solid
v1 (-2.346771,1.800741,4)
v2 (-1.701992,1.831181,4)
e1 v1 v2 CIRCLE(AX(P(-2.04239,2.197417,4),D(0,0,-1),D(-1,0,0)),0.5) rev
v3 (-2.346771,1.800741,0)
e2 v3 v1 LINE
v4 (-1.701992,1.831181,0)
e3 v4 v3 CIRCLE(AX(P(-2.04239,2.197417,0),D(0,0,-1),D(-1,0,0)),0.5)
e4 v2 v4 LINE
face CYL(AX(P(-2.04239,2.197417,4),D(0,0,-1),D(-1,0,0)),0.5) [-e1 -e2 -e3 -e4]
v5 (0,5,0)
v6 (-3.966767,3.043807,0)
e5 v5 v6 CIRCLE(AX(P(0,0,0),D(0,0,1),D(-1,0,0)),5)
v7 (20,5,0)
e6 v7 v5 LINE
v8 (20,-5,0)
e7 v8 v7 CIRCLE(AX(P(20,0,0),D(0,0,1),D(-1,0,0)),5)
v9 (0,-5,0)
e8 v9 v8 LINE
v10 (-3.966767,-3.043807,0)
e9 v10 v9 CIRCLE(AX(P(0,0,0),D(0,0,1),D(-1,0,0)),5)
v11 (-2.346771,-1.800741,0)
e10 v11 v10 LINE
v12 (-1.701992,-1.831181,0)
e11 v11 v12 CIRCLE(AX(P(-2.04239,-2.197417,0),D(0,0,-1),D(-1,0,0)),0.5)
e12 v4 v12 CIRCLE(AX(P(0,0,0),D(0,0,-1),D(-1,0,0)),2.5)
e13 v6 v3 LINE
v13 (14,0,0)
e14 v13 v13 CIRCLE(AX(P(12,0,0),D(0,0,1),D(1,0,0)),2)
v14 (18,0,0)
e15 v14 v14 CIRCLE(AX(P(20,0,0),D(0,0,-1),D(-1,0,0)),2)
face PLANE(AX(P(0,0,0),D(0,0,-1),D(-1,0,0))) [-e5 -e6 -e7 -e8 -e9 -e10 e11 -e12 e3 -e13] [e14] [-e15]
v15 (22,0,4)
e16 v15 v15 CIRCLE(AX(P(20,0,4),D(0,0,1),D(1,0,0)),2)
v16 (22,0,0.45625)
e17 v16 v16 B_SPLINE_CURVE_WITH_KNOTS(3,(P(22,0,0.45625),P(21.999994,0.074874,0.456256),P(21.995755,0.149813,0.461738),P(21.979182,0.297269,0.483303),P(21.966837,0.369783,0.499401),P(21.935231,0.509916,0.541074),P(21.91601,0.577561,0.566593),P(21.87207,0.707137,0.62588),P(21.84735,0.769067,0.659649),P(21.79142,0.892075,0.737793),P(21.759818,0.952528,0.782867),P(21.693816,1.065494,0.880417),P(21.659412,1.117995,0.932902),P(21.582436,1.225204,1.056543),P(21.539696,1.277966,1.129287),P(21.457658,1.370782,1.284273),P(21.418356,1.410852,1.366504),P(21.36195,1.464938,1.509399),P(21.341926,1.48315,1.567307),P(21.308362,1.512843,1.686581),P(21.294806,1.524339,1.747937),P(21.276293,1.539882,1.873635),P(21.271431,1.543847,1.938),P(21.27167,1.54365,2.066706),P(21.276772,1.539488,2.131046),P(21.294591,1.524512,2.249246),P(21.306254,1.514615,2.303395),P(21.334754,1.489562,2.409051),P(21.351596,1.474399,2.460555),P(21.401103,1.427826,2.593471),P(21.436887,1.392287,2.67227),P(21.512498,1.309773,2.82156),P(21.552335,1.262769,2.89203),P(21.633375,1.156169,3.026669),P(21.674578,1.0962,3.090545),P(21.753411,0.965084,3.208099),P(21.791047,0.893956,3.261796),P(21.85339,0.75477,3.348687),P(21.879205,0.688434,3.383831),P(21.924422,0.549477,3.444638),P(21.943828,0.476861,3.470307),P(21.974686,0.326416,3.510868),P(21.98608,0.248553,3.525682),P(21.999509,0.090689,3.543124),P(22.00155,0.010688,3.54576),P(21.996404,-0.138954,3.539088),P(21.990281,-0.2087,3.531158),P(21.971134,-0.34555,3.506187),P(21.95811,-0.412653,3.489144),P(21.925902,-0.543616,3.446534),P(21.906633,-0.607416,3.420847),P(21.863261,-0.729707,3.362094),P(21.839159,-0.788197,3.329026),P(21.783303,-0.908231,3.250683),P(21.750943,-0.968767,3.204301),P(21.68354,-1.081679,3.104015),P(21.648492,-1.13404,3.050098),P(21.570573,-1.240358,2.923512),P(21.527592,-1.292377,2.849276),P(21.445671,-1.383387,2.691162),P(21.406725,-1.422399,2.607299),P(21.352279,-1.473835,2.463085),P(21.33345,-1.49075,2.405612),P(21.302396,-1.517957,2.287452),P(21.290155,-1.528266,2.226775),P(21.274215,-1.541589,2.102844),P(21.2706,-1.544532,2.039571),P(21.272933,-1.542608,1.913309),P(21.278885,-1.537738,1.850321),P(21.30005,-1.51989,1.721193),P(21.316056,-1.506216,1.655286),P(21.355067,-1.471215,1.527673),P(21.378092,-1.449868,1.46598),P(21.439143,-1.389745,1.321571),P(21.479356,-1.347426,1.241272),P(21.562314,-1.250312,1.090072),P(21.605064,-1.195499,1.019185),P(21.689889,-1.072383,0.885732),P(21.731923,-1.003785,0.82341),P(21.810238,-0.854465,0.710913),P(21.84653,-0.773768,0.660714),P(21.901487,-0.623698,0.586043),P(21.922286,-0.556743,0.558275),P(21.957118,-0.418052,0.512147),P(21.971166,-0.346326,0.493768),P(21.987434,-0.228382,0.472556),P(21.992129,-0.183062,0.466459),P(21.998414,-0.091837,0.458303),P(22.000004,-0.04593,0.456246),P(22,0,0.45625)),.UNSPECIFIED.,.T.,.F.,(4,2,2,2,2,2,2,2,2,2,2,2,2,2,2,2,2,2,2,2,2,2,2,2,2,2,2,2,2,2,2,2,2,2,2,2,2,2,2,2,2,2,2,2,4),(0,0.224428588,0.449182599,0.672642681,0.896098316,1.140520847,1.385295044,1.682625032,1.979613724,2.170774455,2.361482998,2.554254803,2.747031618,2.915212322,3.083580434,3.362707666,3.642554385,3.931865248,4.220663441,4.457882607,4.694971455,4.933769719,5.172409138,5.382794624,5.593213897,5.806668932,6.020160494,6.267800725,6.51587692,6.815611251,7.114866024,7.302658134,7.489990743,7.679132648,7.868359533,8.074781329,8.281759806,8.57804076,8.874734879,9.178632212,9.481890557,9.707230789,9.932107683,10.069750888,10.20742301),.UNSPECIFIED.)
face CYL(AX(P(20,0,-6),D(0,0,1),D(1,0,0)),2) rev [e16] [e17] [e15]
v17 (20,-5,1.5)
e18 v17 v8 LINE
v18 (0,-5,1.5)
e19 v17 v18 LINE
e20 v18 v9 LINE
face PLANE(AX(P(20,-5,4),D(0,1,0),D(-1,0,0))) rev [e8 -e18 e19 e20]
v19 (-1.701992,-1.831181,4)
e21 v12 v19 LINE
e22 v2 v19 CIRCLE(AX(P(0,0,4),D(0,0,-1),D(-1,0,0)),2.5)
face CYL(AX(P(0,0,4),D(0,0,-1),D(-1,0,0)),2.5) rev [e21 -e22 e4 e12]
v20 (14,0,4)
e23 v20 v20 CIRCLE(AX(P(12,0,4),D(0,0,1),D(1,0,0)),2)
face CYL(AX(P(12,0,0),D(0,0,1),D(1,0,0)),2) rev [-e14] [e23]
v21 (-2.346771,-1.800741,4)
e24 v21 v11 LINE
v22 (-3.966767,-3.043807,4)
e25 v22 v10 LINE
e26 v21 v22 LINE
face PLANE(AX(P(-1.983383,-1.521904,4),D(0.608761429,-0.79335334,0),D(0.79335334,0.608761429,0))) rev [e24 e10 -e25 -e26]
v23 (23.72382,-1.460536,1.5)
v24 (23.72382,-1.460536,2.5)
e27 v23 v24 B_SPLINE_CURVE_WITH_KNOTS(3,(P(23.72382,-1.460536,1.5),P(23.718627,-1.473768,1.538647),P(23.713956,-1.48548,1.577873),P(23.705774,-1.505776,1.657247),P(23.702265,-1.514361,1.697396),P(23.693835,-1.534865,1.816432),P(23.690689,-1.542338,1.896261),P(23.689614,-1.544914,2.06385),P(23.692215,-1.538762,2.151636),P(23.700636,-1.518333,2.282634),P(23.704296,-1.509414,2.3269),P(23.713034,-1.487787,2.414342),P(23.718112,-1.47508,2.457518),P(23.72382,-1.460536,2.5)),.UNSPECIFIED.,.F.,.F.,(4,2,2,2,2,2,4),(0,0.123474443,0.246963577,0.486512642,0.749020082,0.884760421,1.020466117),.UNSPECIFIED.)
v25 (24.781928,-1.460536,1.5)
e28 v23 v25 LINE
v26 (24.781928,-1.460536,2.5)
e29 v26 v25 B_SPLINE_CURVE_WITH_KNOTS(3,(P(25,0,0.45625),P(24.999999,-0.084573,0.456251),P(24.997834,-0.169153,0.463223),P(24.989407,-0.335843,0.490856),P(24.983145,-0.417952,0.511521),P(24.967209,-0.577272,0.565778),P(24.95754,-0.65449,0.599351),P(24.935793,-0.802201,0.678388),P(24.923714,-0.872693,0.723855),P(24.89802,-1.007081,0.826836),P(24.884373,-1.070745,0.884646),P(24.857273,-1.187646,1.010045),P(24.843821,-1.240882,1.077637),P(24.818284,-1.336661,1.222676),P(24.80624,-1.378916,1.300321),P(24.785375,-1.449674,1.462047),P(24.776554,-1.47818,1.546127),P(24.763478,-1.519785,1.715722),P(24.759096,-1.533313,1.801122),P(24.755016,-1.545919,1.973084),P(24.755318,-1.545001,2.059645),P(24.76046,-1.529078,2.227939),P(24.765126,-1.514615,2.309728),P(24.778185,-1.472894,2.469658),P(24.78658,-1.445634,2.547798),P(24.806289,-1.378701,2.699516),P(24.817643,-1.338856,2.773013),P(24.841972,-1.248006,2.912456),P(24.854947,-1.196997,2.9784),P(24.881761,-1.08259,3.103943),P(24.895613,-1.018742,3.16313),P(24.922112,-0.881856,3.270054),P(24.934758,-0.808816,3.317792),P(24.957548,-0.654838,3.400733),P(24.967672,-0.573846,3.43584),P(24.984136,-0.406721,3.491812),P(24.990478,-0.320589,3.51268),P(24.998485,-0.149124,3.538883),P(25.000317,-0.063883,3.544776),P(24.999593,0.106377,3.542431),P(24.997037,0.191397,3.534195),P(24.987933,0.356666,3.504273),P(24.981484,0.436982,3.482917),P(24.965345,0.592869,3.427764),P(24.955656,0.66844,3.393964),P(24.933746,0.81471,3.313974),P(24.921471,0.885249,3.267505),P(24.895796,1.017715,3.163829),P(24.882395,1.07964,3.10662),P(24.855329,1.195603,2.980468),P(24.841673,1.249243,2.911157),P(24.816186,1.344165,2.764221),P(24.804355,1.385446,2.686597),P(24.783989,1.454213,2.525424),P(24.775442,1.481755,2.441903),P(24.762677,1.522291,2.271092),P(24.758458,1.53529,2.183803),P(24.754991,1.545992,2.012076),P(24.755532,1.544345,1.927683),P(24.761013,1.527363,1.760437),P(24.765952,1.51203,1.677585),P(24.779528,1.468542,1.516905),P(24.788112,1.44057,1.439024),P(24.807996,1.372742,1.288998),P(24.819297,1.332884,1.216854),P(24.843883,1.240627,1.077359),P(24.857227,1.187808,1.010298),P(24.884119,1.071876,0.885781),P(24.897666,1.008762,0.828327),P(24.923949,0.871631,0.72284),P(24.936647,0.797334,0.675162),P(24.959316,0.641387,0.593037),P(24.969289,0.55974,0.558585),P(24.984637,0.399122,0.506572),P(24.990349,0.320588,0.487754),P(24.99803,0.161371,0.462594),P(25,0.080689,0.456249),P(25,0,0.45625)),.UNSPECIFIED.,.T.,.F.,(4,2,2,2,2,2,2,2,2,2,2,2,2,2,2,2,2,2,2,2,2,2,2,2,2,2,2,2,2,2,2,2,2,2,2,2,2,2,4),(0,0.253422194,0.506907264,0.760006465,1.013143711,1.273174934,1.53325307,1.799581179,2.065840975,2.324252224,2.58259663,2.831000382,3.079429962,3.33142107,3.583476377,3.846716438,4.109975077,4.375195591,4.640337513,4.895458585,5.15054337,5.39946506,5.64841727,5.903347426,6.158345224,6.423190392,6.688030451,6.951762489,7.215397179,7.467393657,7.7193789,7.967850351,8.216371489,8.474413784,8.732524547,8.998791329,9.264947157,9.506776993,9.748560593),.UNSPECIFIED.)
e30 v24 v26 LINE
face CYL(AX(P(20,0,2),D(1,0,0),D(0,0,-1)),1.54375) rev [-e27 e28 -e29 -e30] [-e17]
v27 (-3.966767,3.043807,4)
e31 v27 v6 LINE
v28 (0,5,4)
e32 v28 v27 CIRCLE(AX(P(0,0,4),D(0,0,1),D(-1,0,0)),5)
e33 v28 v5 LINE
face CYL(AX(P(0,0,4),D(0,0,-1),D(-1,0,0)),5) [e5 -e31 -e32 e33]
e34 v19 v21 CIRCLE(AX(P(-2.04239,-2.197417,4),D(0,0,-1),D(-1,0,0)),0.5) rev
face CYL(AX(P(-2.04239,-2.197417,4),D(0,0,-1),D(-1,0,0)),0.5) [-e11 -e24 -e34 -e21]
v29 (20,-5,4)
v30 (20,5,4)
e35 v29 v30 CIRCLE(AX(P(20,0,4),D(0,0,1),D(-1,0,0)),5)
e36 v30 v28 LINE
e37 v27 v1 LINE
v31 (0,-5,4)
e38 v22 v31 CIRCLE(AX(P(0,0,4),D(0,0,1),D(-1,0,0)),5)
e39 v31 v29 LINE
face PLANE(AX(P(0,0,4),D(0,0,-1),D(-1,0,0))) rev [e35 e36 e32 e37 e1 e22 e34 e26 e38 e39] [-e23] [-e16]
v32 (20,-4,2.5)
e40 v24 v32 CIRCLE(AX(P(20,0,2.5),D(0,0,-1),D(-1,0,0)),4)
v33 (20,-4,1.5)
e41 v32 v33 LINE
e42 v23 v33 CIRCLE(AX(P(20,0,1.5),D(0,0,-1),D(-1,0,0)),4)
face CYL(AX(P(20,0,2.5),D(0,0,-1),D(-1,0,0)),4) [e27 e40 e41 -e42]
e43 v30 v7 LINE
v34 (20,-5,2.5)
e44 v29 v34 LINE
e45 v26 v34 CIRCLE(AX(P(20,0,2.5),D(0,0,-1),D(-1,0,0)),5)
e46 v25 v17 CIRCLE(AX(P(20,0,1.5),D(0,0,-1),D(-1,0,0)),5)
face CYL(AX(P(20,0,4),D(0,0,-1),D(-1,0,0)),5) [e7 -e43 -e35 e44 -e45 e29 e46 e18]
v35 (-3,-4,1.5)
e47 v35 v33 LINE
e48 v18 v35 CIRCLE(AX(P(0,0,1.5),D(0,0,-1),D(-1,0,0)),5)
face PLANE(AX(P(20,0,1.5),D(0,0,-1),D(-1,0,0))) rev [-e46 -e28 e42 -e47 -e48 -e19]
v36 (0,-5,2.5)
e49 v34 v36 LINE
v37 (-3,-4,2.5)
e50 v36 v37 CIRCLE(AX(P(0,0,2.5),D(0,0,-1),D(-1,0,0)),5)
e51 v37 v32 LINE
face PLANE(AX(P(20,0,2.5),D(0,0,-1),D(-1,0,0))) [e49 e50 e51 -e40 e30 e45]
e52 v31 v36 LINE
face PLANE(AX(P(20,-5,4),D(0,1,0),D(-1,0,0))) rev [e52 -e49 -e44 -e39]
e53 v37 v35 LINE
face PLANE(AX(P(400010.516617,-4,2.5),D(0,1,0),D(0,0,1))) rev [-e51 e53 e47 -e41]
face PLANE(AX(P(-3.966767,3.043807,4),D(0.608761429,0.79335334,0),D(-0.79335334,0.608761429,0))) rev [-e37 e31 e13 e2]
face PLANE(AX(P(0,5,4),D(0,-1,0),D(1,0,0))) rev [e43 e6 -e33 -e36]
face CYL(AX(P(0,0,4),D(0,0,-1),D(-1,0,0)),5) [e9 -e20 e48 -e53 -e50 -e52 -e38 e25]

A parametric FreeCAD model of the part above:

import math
import FreeCAD as App
import Part
import Sketcher
from FreeCAD import Vector
Q = App.Units.Quantity


def edges_at(feature, points):
    """Names of the edges that pass closest to the given points."""
    edges = feature.Shape.Edges
    near = lambda p: min(range(len(edges)), key=lambda i: edges[i].distToShape(Part.Vertex(*p))[0])
    return sorted({f"Edge{near(p) + 1}" for p in points})

doc = App.newDocument("Part")
body = doc.addObject("PartDesign::Body", "Body")

# Sketch on XY plane
sketch1 = body.newObject("Sketcher::SketchObject", "Sketch")
sketch1.AttachmentSupport = (doc.getObject("XY_Plane"), [""])
sketch1.MapMode = "FlatFace"
sketch1.addGeometry([
    Part.LineSegment(Vector(-4, 3, 0), Vector(-2, 1.5, 0)),  # 0
    Part.ArcOfCircle(Part.Circle(Vector(0, 0, 0), Vector(0, 0, 1), 2.5), math.radians(-142), math.radians(142)),  # 1
    Part.LineSegment(Vector(-2, -1.5, 0), Vector(-4, -3, 0)),  # 2
    Part.ArcOfCircle(Part.Circle(Vector(0, 0, 0), Vector(0, 0, 1), 5), math.radians(-143), math.radians(-90)),  # 3
    Part.LineSegment(Vector(0, -5, 0), Vector(20, -5, 0)),  # 4
    Part.ArcOfCircle(Part.Circle(Vector(20, 0, 0), Vector(0, 0, 1), 5), math.radians(-90), math.radians(90)),  # 5
    Part.LineSegment(Vector(20, 5, 0), Vector(0, 5, 0)),  # 6
    Part.ArcOfCircle(Part.Circle(Vector(0, 0, 0), Vector(0, 0, 1), 5), math.radians(90), math.radians(143)),  # 7
], False)
sketch1.addConstraint([
    Sketcher.Constraint("Coincident", 0, 2, 1, 2),
    Sketcher.Constraint("Coincident", 1, 1, 2, 1),
    Sketcher.Constraint("Coincident", 2, 2, 3, 1),
    Sketcher.Constraint("Tangent", 3, 2, 4, 1),
    Sketcher.Constraint("Tangent", 4, 2, 5, 1),
    Sketcher.Constraint("Tangent", 5, 2, 6, 1),
    Sketcher.Constraint("Tangent", 6, 2, 7, 1),
    Sketcher.Constraint("Coincident", 7, 2, 0, 1),
    Sketcher.Constraint("Horizontal", 4),
    Sketcher.Constraint("Horizontal", 6),
    Sketcher.Constraint("Coincident", 1, 3, -1, 1),
    Sketcher.Constraint("Coincident", 3, 3, -1, 1),
    Sketcher.Constraint("Coincident", 7, 3, -1, 1),
    Sketcher.Constraint("Equal", 3, 5),
    Sketcher.Constraint("Vertical", 0, 2, 1, 1),
    Sketcher.Constraint("Vertical", 2, 2, 7, 2),
    Sketcher.Constraint("Radius", 3, Q("5 mm")),
    Sketcher.Constraint("Radius", 1, Q("2.5 mm")),
    Sketcher.Constraint("DistanceX", 4, 1, 4, 2, Q("20 mm")),
    Sketcher.Constraint("Angle", 0, Q("-37.5 deg")),
    Sketcher.Constraint("DistanceY", 2, 2, 0, 2, Q("4.565711 mm")),
])
pad1 = body.newObject("PartDesign::Pad", "Pad")
pad1.Profile = sketch1
pad1.Length = 4
doc.recompute()

fillet = body.newObject("PartDesign::Fillet", "Fillet")
fillet.Base = (pad1, edges_at(pad1, [(-1.983, -1.522, 2), (-1.983, 1.522, 2)]))
fillet.Radius = 0.5

# Sketch on XY plane
sketch2 = body.newObject("Sketcher::SketchObject", "Sketch001")
sketch2.AttachmentSupport = (doc.getObject("XY_Plane"), [""])
sketch2.MapMode = "FlatFace"
sketch2.AttachmentOffset = App.Placement(Vector(0, 0, 4), App.Rotation())
sketch2.addGeometry(Part.Circle(Vector(20, 0, 0), Vector(0, 0, 1), 2), False)
sketch2.addConstraint([
    Sketcher.Constraint("PointOnObject", 0, 3, -1),
    Sketcher.Constraint("Diameter", 0, Q("4 mm")),
    Sketcher.Constraint("DistanceX", -1, 1, 0, 3, Q("20 mm")),
])
pocket1 = body.newObject("PartDesign::Pocket", "Pocket")
pocket1.Profile = sketch2
pocket1.Length = 10

# Sketch on XY plane
sketch3 = body.newObject("Sketcher::SketchObject", "Sketch002")
sketch3.AttachmentSupport = (doc.getObject("XY_Plane"), [""])
sketch3.MapMode = "FlatFace"
sketch3.AttachmentOffset = App.Placement(Vector(0, 0, 4), App.Rotation())
sketch3.addGeometry(Part.Circle(Vector(12, 0, 0), Vector(0, 0, 1), 2), False)
sketch3.addConstraint([
    Sketcher.Constraint("PointOnObject", 0, 3, -1),
    Sketcher.Constraint("Diameter", 0, Q("4 mm")),
    Sketcher.Constraint("DistanceX", -1, 1, 0, 3, Q("12 mm")),
])
pocket2 = body.newObject("PartDesign::Pocket", "Pocket001")
pocket2.Profile = sketch3
pocket2.Length = 4

# Sketch on YZ plane
sketch4 = body.newObject("Sketcher::SketchObject", "Sketch003")
sketch4.AttachmentSupport = (doc.getObject("YZ_Plane"), [""])
sketch4.MapMode = "FlatFace"
sketch4.AttachmentOffset = App.Placement(Vector(0, 0, 50), App.Rotation())
sketch4.addGeometry(Part.Circle(Vector(0, 2, 0), Vector(0, 0, 1), 1.5), False)
sketch4.addConstraint([
    Sketcher.Constraint("PointOnObject", 0, 3, -2),
    Sketcher.Constraint("DistanceY", -1, 1, 0, 3, Q("2 mm")),
    Sketcher.Constraint("Diameter", 0, Q("3.0875 mm")),
])
pocket3 = body.newObject("PartDesign::Pocket", "Pocket002")
pocket3.Profile = sketch4
pocket3.Length = 30

# Sketch on XY plane
sketch5 = body.newObject("Sketcher::SketchObject", "Sketch004")
sketch5.AttachmentSupport = (doc.getObject("XY_Plane"), [""])
sketch5.MapMode = "FlatFace"
sketch5.AttachmentOffset = App.Placement(Vector(0, 0, 2), App.Rotation())
sketch5.addGeometry([
    Part.LineSegment(Vector(24, 0, 0), Vector(25, 0, 0)),  # 0
    Part.ArcOfCircle(Part.Circle(Vector(20, 0, 0), Vector(0, 0, 1), 5), math.radians(-90), math.radians(0)),  # 1
    Part.LineSegment(Vector(20, -5, 0), Vector(-3, -5, 0)),  # 2
    Part.LineSegment(Vector(-3, -5, 0), Vector(-3, -4, 0)),  # 3
    Part.LineSegment(Vector(-3, -4, 0), Vector(20, -4, 0)),  # 4
    Part.ArcOfCircle(Part.Circle(Vector(20, 0, 0), Vector(0, 0, 1), 4), math.radians(-90), math.radians(0)),  # 5
], False)
sketch5.addConstraint([
    Sketcher.Constraint("Coincident", 0, 2, 1, 2),
    Sketcher.Constraint("Tangent", 1, 1, 2, 1),
    Sketcher.Constraint("Coincident", 2, 2, 3, 1),
    Sketcher.Constraint("Coincident", 3, 2, 4, 1),
    Sketcher.Constraint("Tangent", 4, 2, 5, 1),
    Sketcher.Constraint("Coincident", 5, 2, 0, 1),
    Sketcher.Constraint("Horizontal", 0),
    Sketcher.Constraint("Horizontal", 2),
    Sketcher.Constraint("Vertical", 3),
    Sketcher.Constraint("Horizontal", 4),
    Sketcher.Constraint("Coincident", 5, 3, 1, 3),
    Sketcher.Constraint("PointOnObject", 1, 3, -1),
    Sketcher.Constraint("PointOnObject", 0, 2, -1),
    Sketcher.Constraint("Radius", 1, Q("5 mm")),
    Sketcher.Constraint("Radius", 5, Q("4 mm")),
    Sketcher.Constraint("DistanceX", 2, 2, 2, 1, Q("23 mm")),
    Sketcher.Constraint("DistanceX", -1, 1, 1, 3, Q("20 mm")),
])
pocket4 = body.newObject("PartDesign::Pocket", "Pocket003")
pocket4.Profile = sketch5
pocket4.Length = 1
pocket4.Midplane = True

doc.recompute()
